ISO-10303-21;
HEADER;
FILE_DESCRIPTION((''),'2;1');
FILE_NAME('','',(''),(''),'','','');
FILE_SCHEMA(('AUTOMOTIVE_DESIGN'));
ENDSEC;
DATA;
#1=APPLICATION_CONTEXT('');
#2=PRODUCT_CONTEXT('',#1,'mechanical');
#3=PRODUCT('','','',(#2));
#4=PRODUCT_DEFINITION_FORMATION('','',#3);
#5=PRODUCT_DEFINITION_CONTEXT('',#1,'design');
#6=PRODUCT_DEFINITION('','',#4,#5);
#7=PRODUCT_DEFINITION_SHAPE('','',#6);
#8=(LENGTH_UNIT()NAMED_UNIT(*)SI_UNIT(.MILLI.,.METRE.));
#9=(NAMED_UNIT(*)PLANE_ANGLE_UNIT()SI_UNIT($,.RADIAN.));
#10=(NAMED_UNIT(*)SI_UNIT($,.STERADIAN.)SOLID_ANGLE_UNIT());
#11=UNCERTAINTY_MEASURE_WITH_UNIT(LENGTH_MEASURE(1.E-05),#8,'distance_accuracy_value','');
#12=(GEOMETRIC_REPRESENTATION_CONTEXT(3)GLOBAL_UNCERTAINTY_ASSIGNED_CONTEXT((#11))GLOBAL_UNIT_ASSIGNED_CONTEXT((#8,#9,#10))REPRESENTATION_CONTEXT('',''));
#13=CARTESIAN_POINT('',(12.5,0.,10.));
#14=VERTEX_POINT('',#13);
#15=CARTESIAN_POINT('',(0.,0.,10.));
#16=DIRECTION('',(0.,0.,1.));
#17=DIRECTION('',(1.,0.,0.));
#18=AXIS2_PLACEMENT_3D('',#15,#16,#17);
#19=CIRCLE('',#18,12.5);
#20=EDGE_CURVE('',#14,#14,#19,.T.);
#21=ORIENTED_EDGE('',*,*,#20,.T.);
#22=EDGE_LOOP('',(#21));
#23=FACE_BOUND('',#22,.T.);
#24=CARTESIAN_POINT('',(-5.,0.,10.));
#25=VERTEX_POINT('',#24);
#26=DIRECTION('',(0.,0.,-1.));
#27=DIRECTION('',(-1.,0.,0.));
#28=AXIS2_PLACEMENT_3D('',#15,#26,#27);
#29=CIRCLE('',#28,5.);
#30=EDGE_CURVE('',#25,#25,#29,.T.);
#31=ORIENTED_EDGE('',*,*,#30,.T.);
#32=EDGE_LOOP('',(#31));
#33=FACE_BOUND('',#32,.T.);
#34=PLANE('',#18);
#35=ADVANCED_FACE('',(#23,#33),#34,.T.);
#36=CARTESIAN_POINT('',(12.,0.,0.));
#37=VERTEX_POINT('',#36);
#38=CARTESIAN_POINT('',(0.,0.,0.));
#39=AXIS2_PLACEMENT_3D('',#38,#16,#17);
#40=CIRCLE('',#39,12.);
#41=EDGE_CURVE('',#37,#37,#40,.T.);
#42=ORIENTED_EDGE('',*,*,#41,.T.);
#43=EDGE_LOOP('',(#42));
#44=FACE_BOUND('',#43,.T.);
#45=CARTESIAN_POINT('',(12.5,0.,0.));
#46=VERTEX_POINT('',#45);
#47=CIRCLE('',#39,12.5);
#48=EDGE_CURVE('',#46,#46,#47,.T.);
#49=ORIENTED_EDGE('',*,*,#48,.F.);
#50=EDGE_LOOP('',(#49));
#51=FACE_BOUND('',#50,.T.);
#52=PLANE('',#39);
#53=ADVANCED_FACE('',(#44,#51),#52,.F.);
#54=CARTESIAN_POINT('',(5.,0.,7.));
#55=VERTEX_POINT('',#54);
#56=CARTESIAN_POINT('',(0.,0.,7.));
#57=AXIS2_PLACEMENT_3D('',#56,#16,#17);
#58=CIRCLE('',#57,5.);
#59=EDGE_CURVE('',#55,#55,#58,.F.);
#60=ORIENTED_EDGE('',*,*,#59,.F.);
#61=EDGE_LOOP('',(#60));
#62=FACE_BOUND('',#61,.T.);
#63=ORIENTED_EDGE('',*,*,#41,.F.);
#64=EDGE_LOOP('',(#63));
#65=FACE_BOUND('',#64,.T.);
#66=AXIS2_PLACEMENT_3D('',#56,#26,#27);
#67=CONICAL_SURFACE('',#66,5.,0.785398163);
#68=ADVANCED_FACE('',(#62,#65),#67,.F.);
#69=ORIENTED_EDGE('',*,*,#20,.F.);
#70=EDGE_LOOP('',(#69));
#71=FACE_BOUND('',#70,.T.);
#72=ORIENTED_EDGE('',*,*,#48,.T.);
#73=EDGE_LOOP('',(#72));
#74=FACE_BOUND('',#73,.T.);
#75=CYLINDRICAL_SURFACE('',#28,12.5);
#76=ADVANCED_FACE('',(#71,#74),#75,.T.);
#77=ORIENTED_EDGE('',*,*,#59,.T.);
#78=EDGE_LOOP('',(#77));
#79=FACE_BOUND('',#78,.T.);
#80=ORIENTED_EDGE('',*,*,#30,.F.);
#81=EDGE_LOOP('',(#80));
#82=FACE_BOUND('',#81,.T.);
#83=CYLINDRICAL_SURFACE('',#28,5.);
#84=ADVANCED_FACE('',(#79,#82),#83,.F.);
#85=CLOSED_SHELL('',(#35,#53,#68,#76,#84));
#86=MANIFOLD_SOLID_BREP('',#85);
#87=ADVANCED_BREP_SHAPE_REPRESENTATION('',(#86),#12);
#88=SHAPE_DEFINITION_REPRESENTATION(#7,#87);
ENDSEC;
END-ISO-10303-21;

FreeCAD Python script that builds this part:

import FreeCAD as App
import Part
import Sketcher

V = App.Vector
Q = App.Units.Quantity


def edges_at(feature, points):
    """Names of the edges that pass closest to the given points."""
    edges = feature.Shape.Edges
    near = lambda p: min(range(len(edges)), key=lambda i: edges[i].distToShape(Part.Vertex(*p))[0])
    return sorted({f"Edge{near(p) + 1}" for p in points})

doc = App.newDocument("Part")
body = doc.addObject("PartDesign::Body", "Body")

sketch1 = body.newObject("Sketcher::SketchObject", "Sketch")
sketch1.AttachmentSupport = (doc.getObject("XY_Plane"), [""])
sketch1.MapMode = "FlatFace"
sketch1.addGeometry(Part.Circle(V(0, 0, 0), V(0, 0, 1), 12), False)
sketch1.addConstraint(Sketcher.Constraint("Coincident", 0, 3, -1, 1))
sketch1.addConstraint(Sketcher.Constraint("Diameter", 0, Q("25 mm")))
pad1 = body.newObject("PartDesign::Pad", "Pad")
pad1.Profile = sketch1
pad1.Length = 10

sketch2 = body.newObject("Sketcher::SketchObject", "Sketch001")
sketch2.AttachmentSupport = (doc.getObject("XY_Plane"), [""])
sketch2.MapMode = "FlatFace"
sketch2.addGeometry(Part.Circle(V(0, 0, 0), V(0, 0, 1), 5), False)
sketch2.addConstraint(Sketcher.Constraint("Coincident", 0, 3, -1, 1))
sketch2.addConstraint(Sketcher.Constraint("Diameter", 0, Q("10 mm")))
pocket1 = body.newObject("PartDesign::Pocket", "Pocket")
pocket1.Profile = sketch2
pocket1.Type = "ThroughAll"
pocket1.Reversed = True
doc.recompute()

chamfer = body.newObject("PartDesign::Chamfer", "Chamfer")
chamfer.Base = (pocket1, edges_at(pocket1, [(5, 0, 0)]))
chamfer.Size = 7

doc.recompute()
